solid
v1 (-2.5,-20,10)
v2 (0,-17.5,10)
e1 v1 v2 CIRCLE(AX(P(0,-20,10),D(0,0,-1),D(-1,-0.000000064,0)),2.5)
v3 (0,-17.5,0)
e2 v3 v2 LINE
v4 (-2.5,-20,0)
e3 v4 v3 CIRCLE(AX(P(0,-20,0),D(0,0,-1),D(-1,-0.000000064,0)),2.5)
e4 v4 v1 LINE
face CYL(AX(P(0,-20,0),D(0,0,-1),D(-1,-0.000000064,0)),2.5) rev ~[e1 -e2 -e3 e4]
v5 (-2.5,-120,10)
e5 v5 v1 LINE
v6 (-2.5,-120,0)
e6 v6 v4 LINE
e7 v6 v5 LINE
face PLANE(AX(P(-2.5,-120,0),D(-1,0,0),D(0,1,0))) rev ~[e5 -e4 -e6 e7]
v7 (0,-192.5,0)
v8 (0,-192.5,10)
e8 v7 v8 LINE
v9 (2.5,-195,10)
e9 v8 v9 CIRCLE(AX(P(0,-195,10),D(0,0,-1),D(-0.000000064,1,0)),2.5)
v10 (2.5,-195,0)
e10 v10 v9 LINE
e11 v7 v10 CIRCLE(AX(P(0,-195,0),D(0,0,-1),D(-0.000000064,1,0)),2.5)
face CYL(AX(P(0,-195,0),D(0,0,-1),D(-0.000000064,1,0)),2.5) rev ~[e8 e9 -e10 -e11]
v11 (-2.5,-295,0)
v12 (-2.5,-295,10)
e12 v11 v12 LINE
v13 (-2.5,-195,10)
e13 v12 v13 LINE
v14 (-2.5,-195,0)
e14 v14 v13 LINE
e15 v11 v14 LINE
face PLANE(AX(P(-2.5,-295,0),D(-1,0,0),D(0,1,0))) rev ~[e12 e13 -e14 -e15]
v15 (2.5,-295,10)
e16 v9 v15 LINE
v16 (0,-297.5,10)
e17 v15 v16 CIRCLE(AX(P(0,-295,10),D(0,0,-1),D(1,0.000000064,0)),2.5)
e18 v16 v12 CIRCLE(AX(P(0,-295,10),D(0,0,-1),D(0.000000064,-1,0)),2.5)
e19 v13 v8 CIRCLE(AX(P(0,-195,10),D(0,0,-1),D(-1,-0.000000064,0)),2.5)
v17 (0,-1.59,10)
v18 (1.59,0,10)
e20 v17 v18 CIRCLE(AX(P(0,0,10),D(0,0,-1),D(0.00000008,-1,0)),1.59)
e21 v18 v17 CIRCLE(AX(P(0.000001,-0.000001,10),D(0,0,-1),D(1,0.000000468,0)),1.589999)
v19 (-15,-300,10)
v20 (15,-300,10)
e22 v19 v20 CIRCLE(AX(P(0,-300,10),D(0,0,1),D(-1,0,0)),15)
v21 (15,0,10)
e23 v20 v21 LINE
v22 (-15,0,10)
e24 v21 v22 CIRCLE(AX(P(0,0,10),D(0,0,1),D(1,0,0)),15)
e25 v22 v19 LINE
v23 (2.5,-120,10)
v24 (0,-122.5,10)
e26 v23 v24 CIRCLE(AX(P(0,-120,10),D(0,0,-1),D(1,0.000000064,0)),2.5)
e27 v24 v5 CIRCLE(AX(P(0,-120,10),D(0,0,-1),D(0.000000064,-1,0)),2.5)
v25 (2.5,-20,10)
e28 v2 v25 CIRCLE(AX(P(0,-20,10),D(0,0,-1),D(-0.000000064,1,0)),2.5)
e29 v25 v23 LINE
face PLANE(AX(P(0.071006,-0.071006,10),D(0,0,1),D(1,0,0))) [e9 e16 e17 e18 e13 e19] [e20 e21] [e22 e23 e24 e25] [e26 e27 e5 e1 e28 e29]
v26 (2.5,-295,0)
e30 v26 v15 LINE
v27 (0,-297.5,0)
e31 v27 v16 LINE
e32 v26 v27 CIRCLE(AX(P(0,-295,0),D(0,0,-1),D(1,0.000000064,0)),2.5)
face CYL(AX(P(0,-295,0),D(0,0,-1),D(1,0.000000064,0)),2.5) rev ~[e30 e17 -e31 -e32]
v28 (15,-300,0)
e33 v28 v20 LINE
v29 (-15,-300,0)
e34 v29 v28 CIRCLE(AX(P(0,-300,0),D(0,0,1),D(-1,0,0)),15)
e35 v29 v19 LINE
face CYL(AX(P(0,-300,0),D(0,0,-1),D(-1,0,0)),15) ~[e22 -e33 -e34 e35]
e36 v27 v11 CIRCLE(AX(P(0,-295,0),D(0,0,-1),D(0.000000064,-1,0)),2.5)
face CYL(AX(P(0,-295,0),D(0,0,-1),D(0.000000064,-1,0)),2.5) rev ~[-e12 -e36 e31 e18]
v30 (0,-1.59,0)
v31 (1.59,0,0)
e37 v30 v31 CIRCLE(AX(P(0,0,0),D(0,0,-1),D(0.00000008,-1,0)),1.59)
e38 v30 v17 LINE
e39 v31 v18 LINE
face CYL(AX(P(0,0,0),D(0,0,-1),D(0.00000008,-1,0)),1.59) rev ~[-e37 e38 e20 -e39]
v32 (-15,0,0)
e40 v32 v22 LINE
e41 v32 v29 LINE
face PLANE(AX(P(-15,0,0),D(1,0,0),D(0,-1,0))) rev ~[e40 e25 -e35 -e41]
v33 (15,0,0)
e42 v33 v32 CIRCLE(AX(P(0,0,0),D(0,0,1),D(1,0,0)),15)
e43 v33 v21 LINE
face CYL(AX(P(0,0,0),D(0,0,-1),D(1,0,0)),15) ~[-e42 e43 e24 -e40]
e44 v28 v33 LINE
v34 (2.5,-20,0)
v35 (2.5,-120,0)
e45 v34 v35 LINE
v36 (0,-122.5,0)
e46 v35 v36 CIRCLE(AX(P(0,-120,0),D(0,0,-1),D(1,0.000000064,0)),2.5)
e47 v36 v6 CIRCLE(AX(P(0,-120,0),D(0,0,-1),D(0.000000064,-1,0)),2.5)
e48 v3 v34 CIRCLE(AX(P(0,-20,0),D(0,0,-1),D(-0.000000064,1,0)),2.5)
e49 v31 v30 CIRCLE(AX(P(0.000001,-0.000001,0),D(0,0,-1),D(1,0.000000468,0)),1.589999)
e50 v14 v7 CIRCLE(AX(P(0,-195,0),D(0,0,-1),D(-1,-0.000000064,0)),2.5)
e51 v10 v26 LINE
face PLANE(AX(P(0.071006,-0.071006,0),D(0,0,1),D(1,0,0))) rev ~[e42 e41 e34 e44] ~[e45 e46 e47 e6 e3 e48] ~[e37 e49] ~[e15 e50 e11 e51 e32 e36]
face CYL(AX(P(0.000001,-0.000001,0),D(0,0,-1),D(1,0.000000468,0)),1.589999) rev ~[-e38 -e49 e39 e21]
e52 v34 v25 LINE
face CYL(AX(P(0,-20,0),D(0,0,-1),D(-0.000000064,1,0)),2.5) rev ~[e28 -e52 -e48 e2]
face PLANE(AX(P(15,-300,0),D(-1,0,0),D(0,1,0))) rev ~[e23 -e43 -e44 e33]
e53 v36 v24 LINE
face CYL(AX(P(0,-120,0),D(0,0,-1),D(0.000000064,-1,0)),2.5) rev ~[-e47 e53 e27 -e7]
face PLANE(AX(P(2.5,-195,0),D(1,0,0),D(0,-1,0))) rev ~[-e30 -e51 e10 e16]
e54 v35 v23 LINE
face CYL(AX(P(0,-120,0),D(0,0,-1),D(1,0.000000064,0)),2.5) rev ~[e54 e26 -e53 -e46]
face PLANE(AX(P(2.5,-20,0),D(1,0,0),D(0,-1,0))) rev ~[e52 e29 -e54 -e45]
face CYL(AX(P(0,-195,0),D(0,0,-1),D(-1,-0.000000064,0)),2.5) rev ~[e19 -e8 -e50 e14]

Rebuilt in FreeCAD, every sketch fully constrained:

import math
import FreeCAD as App
import Part
import Sketcher

V = App.Vector
Q = App.Units.Quantity

doc = App.newDocument("Part")
body = doc.addObject("PartDesign::Body", "Body")

# Sketch on XY plane
sketch1 = body.newObject("Sketcher::SketchObject", "Sketch")
sketch1.AttachmentSupport = (doc.getObject("XY_Plane"), [""])
sketch1.MapMode = "FlatFace"
sketch1.addGeometry(Part.ArcOfCircle(Part.Circle(V(0, 0, 0), V(0, 0, 1), 15), math.radians(0), math.radians(180)), False)
sketch1.addGeometry(Part.LineSegment(V(-15, 0, 0), V(-15, -300, 0)), False)
sketch1.addGeometry(Part.ArcOfCircle(Part.Circle(V(0, -300, 0), V(0, 0, 1), 15), math.radians(180), math.radians(360)), False)
sketch1.addGeometry(Part.LineSegment(V(15, -300, 0), V(15, 0, 0)), False)
sketch1.addGeometry(Part.LineSegment(V(-2.5, -295, 0), V(-2.5, -195, 0)), False)
sketch1.addGeometry(Part.ArcOfCircle(Part.Circle(V(0, -195, 0), V(0, 0, 1), 2.5), math.radians(90), math.radians(180)), False)
sketch1.addGeometry(Part.ArcOfCircle(Part.Circle(V(0, -195, 0), V(0, 0, 1), 2.5), math.radians(0), math.radians(90)), False)
sketch1.addGeometry(Part.LineSegment(V(2.5, -195, 0), V(2.5, -295, 0)), False)
sketch1.addGeometry(Part.ArcOfCircle(Part.Circle(V(0, -295, 0), V(0, 0, 1), 2.5), math.radians(-90), math.radians(0)), False)
sketch1.addGeometry(Part.ArcOfCircle(Part.Circle(V(0, -295, 0), V(0, 0, 1), 2.5), math.radians(180), math.radians(270)), False)
sketch1.addGeometry(Part.LineSegment(V(-2.5, -120, 0), V(-2.5, -20, 0)), False)
sketch1.addGeometry(Part.ArcOfCircle(Part.Circle(V(0, -20, 0), V(0, 0, 1), 2.5), math.radians(90), math.radians(180)), False)
sketch1.addGeometry(Part.ArcOfCircle(Part.Circle(V(0, -20, 0), V(0, 0, 1), 2.5), math.radians(0), math.radians(90)), False)
sketch1.addGeometry(Part.LineSegment(V(2.5, -20, 0), V(2.5, -120, 0)), False)
sketch1.addGeometry(Part.ArcOfCircle(Part.Circle(V(0, -120, 0), V(0, 0, 1), 2.5), math.radians(-90), math.radians(0)), False)
sketch1.addGeometry(Part.ArcOfCircle(Part.Circle(V(0, -120, 0), V(0, 0, 1), 2.5), math.radians(180), math.radians(270)), False)
sketch1.addGeometry(Part.ArcOfCircle(Part.Circle(V(0, 0, 0), V(0, 0, 1), 1.6), math.radians(0), math.radians(270)), False)
sketch1.addGeometry(Part.ArcOfCircle(Part.Circle(V(0, 0, 0), V(0, 0, 1), 1.6), math.radians(-90), math.radians(0)), False)
sketch1.addConstraint(Sketcher.Constraint("Tangent", 0, 2, 1, 1))
sketch1.addConstraint(Sketcher.Constraint("Tangent", 1, 2, 2, 1))
sketch1.addConstraint(Sketcher.Constraint("Tangent", 2, 2, 3, 1))
sketch1.addConstraint(Sketcher.Constraint("Tangent", 3, 2, 0, 1))
sketch1.addConstraint(Sketcher.Constraint("Tangent", 4, 2, 5, 2))
sketch1.addConstraint(Sketcher.Constraint("Tangent", 5, 1, 6, 2))
sketch1.addConstraint(Sketcher.Constraint("Tangent", 6, 1, 7, 1))
sketch1.addConstraint(Sketcher.Constraint("Tangent", 7, 2, 8, 2))
sketch1.addConstraint(Sketcher.Constraint("Tangent", 8, 1, 9, 2))
sketch1.addConstraint(Sketcher.Constraint("Tangent", 9, 1, 4, 1))
sketch1.addConstraint(Sketcher.Constraint("Tangent", 10, 2, 11, 2))
sketch1.addConstraint(Sketcher.Constraint("Tangent", 11, 1, 12, 2))
sketch1.addConstraint(Sketcher.Constraint("Tangent", 12, 1, 13, 1))
sketch1.addConstraint(Sketcher.Constraint("Tangent", 13, 2, 14, 2))
sketch1.addConstraint(Sketcher.Constraint("Tangent", 14, 1, 15, 2))
sketch1.addConstraint(Sketcher.Constraint("Tangent", 15, 1, 10, 1))
sketch1.addConstraint(Sketcher.Constraint("Tangent", 16, 1, 17, 2))
sketch1.addConstraint(Sketcher.Constraint("Coincident", 17, 1, 16, 2))
sketch1.addConstraint(Sketcher.Constraint("Vertical", 1))
sketch1.addConstraint(Sketcher.Constraint("Vertical", 3))
sketch1.addConstraint(Sketcher.Constraint("Vertical", 4))
sketch1.addConstraint(Sketcher.Constraint("Vertical", 7))
sketch1.addConstraint(Sketcher.Constraint("Vertical", 10))
sketch1.addConstraint(Sketcher.Constraint("Vertical", 13))
sketch1.addConstraint(Sketcher.Constraint("Coincident", 0, 3, -1, 1))
sketch1.addConstraint(Sketcher.Constraint("Coincident", 16, 3, -1, 1))
sketch1.addConstraint(Sketcher.Constraint("Equal", 5, 6))
sketch1.addConstraint(Sketcher.Constraint("Equal", 6, 8))
sketch1.addConstraint(Sketcher.Constraint("Equal", 9, 11))
sketch1.addConstraint(Sketcher.Constraint("Equal", 11, 12))
sketch1.addConstraint(Sketcher.Constraint("Equal", 12, 14))
sketch1.addConstraint(Sketcher.Constraint("PointOnObject", 5, 3, -2))
sketch1.addConstraint(Sketcher.Constraint("PointOnObject", 11, 3, -2))
sketch1.addConstraint(Sketcher.Constraint("PointOnObject", 5, 1, -2))
sketch1.addConstraint(Sketcher.Constraint("PointOnObject", 8, 1, -2))
sketch1.addConstraint(Sketcher.Constraint("PointOnObject", 11, 1, -2))
sketch1.addConstraint(Sketcher.Constraint("PointOnObject", 14, 1, -2))
sketch1.addConstraint(Sketcher.Constraint("PointOnObject", 16, 1, -1))
sketch1.addConstraint(Sketcher.Constraint("PointOnObject", 17, 1, -2))
sketch1.addConstraint(Sketcher.Constraint("Equal", 7, 10))
sketch1.addConstraint(Sketcher.Constraint("Radius", 0, Q("15 mm")))
sketch1.addConstraint(Sketcher.Constraint("Radius", 5, Q("2.5 mm")))
sketch1.addConstraint(Sketcher.Constraint("DistanceY", 1, 2, 1, 1, Q("300 mm")))
sketch1.addConstraint(Sketcher.Constraint("DistanceY", 4, 1, 4, 2, Q("100 mm")))
sketch1.addConstraint(Sketcher.Constraint("Radius", 16, Q("1.59 mm")))
sketch1.addConstraint(Sketcher.Constraint("DistanceY", 5, 3, -1, 1, Q("195 mm")))
sketch1.addConstraint(Sketcher.Constraint("DistanceY", 11, 3, -1, 1, Q("20 mm")))
pad1 = body.newObject("PartDesign::Pad", "Pad")
pad1.Profile = sketch1
pad1.Length = 10

doc.recompute()
